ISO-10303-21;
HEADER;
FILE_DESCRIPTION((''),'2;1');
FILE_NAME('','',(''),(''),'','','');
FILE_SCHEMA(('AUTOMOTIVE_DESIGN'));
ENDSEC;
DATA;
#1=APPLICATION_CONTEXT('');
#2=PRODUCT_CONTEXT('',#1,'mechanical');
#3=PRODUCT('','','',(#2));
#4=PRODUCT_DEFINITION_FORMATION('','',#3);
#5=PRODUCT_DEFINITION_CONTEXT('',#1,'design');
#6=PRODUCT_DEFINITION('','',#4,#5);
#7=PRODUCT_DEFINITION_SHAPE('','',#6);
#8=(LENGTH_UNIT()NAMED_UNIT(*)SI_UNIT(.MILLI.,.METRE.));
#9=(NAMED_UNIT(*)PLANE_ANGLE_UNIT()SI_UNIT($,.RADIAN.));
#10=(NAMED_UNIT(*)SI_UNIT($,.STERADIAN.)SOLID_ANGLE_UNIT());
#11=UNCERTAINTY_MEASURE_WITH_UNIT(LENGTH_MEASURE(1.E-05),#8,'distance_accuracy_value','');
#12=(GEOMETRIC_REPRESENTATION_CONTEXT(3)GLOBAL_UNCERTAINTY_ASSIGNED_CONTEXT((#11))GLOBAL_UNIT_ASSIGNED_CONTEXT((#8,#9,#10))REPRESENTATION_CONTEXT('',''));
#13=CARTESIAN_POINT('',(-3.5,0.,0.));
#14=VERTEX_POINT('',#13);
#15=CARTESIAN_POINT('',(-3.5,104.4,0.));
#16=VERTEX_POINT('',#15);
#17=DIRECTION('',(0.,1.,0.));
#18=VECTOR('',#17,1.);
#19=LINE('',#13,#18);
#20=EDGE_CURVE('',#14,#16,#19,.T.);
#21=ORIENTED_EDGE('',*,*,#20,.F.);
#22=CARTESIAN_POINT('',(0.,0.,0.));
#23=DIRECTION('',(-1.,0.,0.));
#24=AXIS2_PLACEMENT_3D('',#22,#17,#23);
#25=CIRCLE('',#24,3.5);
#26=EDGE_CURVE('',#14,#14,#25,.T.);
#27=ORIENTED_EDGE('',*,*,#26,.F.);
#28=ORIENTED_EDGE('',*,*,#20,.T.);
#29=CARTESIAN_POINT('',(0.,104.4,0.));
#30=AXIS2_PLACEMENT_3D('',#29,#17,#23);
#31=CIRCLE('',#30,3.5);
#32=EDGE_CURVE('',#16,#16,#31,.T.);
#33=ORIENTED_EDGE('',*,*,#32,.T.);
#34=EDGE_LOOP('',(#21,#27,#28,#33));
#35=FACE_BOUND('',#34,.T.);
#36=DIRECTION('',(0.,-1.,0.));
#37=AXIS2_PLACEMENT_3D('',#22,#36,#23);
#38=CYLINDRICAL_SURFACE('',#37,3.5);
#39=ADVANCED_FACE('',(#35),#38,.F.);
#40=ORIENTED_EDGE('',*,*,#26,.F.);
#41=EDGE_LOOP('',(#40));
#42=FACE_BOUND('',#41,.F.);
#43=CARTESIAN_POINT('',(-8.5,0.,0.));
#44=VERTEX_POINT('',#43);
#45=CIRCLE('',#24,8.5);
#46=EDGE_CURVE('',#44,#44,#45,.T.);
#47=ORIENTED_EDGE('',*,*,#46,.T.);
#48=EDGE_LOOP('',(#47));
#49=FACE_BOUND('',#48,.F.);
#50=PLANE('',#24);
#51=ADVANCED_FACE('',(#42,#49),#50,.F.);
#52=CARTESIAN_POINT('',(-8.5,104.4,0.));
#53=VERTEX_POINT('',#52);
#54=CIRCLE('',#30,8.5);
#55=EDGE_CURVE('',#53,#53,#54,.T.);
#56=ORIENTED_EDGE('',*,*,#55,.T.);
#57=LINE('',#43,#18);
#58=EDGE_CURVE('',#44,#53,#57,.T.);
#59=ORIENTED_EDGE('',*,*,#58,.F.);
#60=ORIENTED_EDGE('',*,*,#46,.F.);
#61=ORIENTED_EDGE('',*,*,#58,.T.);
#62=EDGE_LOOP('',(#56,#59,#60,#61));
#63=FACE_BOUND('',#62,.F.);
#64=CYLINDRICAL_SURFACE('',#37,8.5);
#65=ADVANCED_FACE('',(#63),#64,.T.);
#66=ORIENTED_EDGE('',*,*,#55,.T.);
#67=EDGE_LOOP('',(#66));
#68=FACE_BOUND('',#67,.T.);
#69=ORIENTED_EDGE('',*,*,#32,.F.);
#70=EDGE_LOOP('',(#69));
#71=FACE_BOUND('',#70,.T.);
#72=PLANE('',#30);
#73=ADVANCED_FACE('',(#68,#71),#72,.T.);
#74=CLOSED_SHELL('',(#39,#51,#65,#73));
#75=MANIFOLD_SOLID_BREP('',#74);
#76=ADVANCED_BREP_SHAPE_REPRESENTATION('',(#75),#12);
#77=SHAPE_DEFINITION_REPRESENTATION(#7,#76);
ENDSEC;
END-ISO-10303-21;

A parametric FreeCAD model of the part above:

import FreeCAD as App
import Part
import Sketcher
from FreeCAD import Vector

doc = App.newDocument("Part")
params = doc.addObject("Spreadsheet::Sheet", "Params")
for row, (alias, value) in enumerate([
    ("sketch1_diameter", "17 mm"),
    ("sketch1_diameter2", "7 mm"),
    ("pad1_length", "104.4 mm"),
], start=1):
    params.set(f"A{row}", alias)
    params.set(f"B{row}", "=" + value)
    params.setAlias(f"B{row}", alias)

body = doc.addObject("PartDesign::Body", "Body")

sketch1 = body.newObject("Sketcher::SketchObject", "Sketch")
sketch1.AttachmentSupport = (doc.getObject("XZ_Plane"), [""])
sketch1.MapMode = "FlatFace"
sketch1.addGeometry(Part.Circle(Vector(0, 0, 0), Vector(0, 0, 1), 8.5), False)
sketch1.addGeometry(Part.Circle(Vector(0, 0, 0), Vector(0, 0, 1), 3.5), False)
sketch1.addConstraint(Sketcher.Constraint("Coincident", 0, 3, -1, 1))
sketch1.addConstraint(Sketcher.Constraint("Coincident", 1, 3, -1, 1))
sketch1.addConstraint(Sketcher.Constraint("Diameter", 0, 17.0))
sketch1.addConstraint(Sketcher.Constraint("Diameter", 1, 7.0))
sketch1.setExpression("Constraints[2]", "Params.sketch1_diameter")
sketch1.setExpression("Constraints[3]", "Params.sketch1_diameter2")
pad1 = body.newObject("PartDesign::Pad", "Pad")
pad1.Profile = sketch1
pad1.setExpression("Length", "Params.pad1_length")
pad1.Reversed = True

doc.recompute()
